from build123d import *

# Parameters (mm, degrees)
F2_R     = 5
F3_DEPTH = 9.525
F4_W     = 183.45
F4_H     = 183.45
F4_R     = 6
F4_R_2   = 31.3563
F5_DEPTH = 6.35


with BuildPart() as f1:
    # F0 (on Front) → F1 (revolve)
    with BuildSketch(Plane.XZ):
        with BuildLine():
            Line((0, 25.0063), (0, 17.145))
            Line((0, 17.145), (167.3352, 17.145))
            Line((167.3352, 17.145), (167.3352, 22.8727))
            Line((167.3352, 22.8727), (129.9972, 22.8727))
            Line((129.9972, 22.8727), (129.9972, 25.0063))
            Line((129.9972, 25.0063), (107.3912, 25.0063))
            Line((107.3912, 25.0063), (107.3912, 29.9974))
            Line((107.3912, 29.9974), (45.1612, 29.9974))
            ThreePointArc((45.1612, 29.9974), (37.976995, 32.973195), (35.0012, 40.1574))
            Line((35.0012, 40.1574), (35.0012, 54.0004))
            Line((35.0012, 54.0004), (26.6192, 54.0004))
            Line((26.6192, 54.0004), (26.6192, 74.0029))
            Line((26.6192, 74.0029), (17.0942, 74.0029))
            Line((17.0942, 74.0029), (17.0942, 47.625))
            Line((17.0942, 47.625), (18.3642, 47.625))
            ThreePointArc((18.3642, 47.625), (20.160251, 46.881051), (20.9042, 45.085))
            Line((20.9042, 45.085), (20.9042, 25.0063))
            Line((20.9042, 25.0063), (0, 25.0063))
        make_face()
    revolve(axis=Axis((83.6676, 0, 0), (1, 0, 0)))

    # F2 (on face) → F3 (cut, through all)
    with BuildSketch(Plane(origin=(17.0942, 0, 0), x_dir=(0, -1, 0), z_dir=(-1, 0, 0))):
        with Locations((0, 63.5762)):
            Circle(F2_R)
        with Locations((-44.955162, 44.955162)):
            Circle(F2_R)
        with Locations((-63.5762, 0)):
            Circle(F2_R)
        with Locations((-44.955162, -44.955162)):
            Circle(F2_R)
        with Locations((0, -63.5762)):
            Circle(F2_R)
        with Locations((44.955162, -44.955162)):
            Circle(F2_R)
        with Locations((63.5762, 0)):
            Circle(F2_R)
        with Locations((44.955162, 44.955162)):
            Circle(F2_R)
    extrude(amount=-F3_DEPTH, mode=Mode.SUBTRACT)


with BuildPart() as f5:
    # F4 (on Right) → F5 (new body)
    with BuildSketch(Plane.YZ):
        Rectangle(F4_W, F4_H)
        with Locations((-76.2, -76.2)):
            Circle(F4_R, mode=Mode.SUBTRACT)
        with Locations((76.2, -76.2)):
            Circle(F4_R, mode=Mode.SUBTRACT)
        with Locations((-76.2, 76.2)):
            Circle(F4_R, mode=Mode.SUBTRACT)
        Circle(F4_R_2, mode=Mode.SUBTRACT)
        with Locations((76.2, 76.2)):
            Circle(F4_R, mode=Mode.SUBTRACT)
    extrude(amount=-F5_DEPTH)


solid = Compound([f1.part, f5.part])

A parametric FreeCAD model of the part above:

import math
import FreeCAD as App
import Part
import Sketcher
Q = App.Units.Quantity


def add_polygon(sketch, points):
    """Adds a closed chain of lines whose ends are joined by coincident constraints."""
    first, n = sketch.GeometryCount, len(points)
    for a, b in zip(points, points[1:] + points[:1]):
        sketch.addGeometry(Part.LineSegment(App.Vector(*a, 0), App.Vector(*b, 0)), False)
    for i in range(n):
        sketch.addConstraint(Sketcher.Constraint("Coincident", first + i, 2, first + (i + 1) % n, 1))

doc = App.newDocument("Part")
params = doc.addObject("Spreadsheet::Sheet", "Params")
for row, (alias, value) in enumerate([
    ("sketch1_radius", "0.4 in"),
    ("sketch1_radius2", "0.1 in"),
    ("sketch1_width", "1.47 in"),
    ("sketch1_width2", "0.89 in"),
    ("sketch1_width3", "2.45 in"),
    ("revolution_angle", "360 deg"),
    ("sketch3_diameter", "2.469 in"),
    ("pad1_length", "0.25 in"),
], start=1):
    params.set(f"A{row}", alias)
    params.set(f"B{row}", "=" + value)
    params.setAlias(f"B{row}", alias)

body = doc.addObject("PartDesign::Body", "Body")

# Sketch on XZ plane
sketch1 = doc.addObject("Sketcher::SketchObject", "Sketch")
body.addObject(sketch1)
sketch1.AttachmentSupport = (doc.XZ_Plane, [""])
sketch1.MapMode = "FlatFace"
sketch1.addGeometry([
    Part.LineSegment(App.Vector(0, 25, 0), App.Vector(0, 17.1, 0)),  # 0
    Part.LineSegment(App.Vector(0, 17.1, 0), App.Vector(167.3, 17.1, 0)),  # 1
    Part.LineSegment(App.Vector(167.3, 17.1, 0), App.Vector(167.3, 22.9, 0)),  # 2
    Part.LineSegment(App.Vector(167.3, 22.9, 0), App.Vector(130, 22.9, 0)),  # 3
    Part.LineSegment(App.Vector(130, 22.9, 0), App.Vector(130, 25, 0)),  # 4
    Part.LineSegment(App.Vector(130, 25, 0), App.Vector(107.4, 25, 0)),  # 5
    Part.LineSegment(App.Vector(107.4, 25, 0), App.Vector(107.4, 30, 0)),  # 6
    Part.LineSegment(App.Vector(107.4, 30, 0), App.Vector(45.2, 30, 0)),  # 7
    Part.ArcOfCircle(Part.Circle(App.Vector(45.2, 40.2, 0), App.Vector(0, 0, 1), 10.2), math.radians(180), math.radians(270)),  # 8
    Part.LineSegment(App.Vector(35, 40.2, 0), App.Vector(35, 54, 0)),  # 9
    Part.LineSegment(App.Vector(35, 54, 0), App.Vector(26.6, 54, 0)),  # 10
    Part.LineSegment(App.Vector(26.6, 54, 0), App.Vector(26.6, 74, 0)),  # 11
    Part.LineSegment(App.Vector(26.6, 74, 0), App.Vector(17.1, 74, 0)),  # 12
    Part.LineSegment(App.Vector(17.1, 74, 0), App.Vector(17.1, 47.6, 0)),  # 13
    Part.LineSegment(App.Vector(17.1, 47.6, 0), App.Vector(18.4, 47.6, 0)),  # 14
    Part.ArcOfCircle(Part.Circle(App.Vector(18.4, 45.1, 0), App.Vector(0, 0, 1), 2.5), math.radians(0), math.radians(90)),  # 15
    Part.LineSegment(App.Vector(20.9, 45.1, 0), App.Vector(20.9, 25, 0)),  # 16
    Part.LineSegment(App.Vector(20.9, 25, 0), App.Vector(0, 25, 0)),  # 17
], False)
sketch1.addConstraint([
    Sketcher.Constraint("Coincident", 0, 2, 1, 1),
    Sketcher.Constraint("Coincident", 1, 2, 2, 1),
    Sketcher.Constraint("Coincident", 2, 2, 3, 1),
    Sketcher.Constraint("Coincident", 3, 2, 4, 1),
    Sketcher.Constraint("Coincident", 4, 2, 5, 1),
    Sketcher.Constraint("Coincident", 5, 2, 6, 1),
    Sketcher.Constraint("Coincident", 6, 2, 7, 1),
    Sketcher.Constraint("Tangent", 7, 2, 8, 2),
    Sketcher.Constraint("Tangent", 8, 1, 9, 1),
    Sketcher.Constraint("Coincident", 9, 2, 10, 1),
    Sketcher.Constraint("Coincident", 10, 2, 11, 1),
    Sketcher.Constraint("Coincident", 11, 2, 12, 1),
    Sketcher.Constraint("Coincident", 12, 2, 13, 1),
    Sketcher.Constraint("Coincident", 13, 2, 14, 1),
    Sketcher.Constraint("Tangent", 14, 2, 15, 2),
    Sketcher.Constraint("Tangent", 15, 1, 16, 1),
    Sketcher.Constraint("Coincident", 16, 2, 17, 1),
    Sketcher.Constraint("Coincident", 17, 2, 0, 1),
    Sketcher.Constraint("Vertical", 0),
    Sketcher.Constraint("Horizontal", 1),
    Sketcher.Constraint("Vertical", 2),
    Sketcher.Constraint("Horizontal", 3),
    Sketcher.Constraint("Vertical", 4),
    Sketcher.Constraint("Horizontal", 5),
    Sketcher.Constraint("Vertical", 6),
    Sketcher.Constraint("Horizontal", 7),
    Sketcher.Constraint("Vertical", 9),
    Sketcher.Constraint("Horizontal", 10),
    Sketcher.Constraint("Vertical", 11),
    Sketcher.Constraint("Horizontal", 12),
    Sketcher.Constraint("Vertical", 13),
    Sketcher.Constraint("Horizontal", 14),
    Sketcher.Constraint("Vertical", 16),
    Sketcher.Constraint("Horizontal", 17),
    Sketcher.Constraint("PointOnObject", 0, 2, -2),
    Sketcher.Constraint("Horizontal", 5, 2, 16, 2),
    Sketcher.Constraint("Radius", 8, Q("0.4 in")),
    Sketcher.Constraint("Radius", 15, Q("0.1 in")),
    Sketcher.Constraint("DistanceX", 3, 2, 3, 1, Q("1.47 in")),
    Sketcher.Constraint("DistanceX", 5, 2, 5, 1, Q("0.89 in")),
    Sketcher.Constraint("DistanceX", 7, 2, 7, 1, Q("2.45 in")),
    Sketcher.Constraint("DistanceX", 10, 2, 10, 1, Q("0.33 in")),
    Sketcher.Constraint("DistanceX", 14, 1, 14, 2, Q("0.05 in")),
    Sketcher.Constraint("DistanceY", 0, 2, 15, 3, Q("1.1 in")),
    Sketcher.Constraint("DistanceX", 1, 1, 1, 2, Q("6.588 in")),
    Sketcher.Constraint("DistanceX", 12, 2, 12, 1, Q("0.375 in")),
    Sketcher.Constraint("DistanceY", 4, 1, 4, 2, Q("0.084 in")),
    Sketcher.Constraint("DistanceY", 9, 1, 9, 2, Q("0.545 in")),
    Sketcher.Constraint("DistanceY", 0, 2, 0, 1, Q("0.3095 in")),
    Sketcher.Constraint("DistanceY", 6, 1, 6, 2, Q("0.1965 in")),
    Sketcher.Constraint("DistanceY", 11, 1, 11, 2, Q("0.7875 in")),
    Sketcher.Constraint("DistanceY", -1, 1, 8, 3, Q("1.581 in")),
])
sketch1.setExpression("Constraints[36]", "Params.sketch1_radius")
sketch1.setExpression("Constraints[37]", "Params.sketch1_radius2")
sketch1.setExpression("Constraints[38]", "Params.sketch1_width")
sketch1.setExpression("Constraints[39]", "Params.sketch1_width2")
sketch1.setExpression("Constraints[40]", "Params.sketch1_width3")
revolution = doc.addObject("PartDesign::Revolution", "Revolution")
body.addObject(revolution)
revolution.Profile = sketch1
revolution.ReferenceAxis = (sketch1, ["H_Axis"])
revolution.setExpression("Angle", "Params.revolution_angle")

# Sketch on YZ plane
sketch2 = doc.addObject("Sketcher::SketchObject", "Sketch001")
body.addObject(sketch2)
sketch2.AttachmentSupport = (doc.YZ_Plane, [""])
sketch2.MapMode = "FlatFace"
sketch2.AttachmentOffset = App.Placement(App.Vector(0, 0, 0.673 * 25.4), App.Rotation())
sketch2.addGeometry([
    Part.Circle(App.Vector(0, 64, 0), App.Vector(0, 0, 1), 5),  # 0
    Part.Circle(App.Vector(45, 45, 0), App.Vector(0, 0, 1), 5),  # 1
    Part.Circle(App.Vector(64, 0, 0), App.Vector(0, 0, 1), 5),  # 2
    Part.Circle(App.Vector(45, -45, 0), App.Vector(0, 0, 1), 5),  # 3
    Part.Circle(App.Vector(0, -64, 0), App.Vector(0, 0, 1), 5),  # 4
    Part.Circle(App.Vector(-45, -45, 0), App.Vector(0, 0, 1), 5),  # 5
    Part.Circle(App.Vector(-64, 0, 0), App.Vector(0, 0, 1), 5),  # 6
    Part.Circle(App.Vector(-45, 45, 0), App.Vector(0, 0, 1), 5),  # 7
], False)
sketch2.addConstraint([
    Sketcher.Constraint("Equal", 0, 1),
    Sketcher.Constraint("Equal", 1, 2),
    Sketcher.Constraint("Equal", 2, 3),
    Sketcher.Constraint("Equal", 3, 4),
    Sketcher.Constraint("Equal", 4, 5),
    Sketcher.Constraint("Equal", 5, 6),
    Sketcher.Constraint("Equal", 6, 7),
    Sketcher.Constraint("Symmetric", 0, 3, 4, 3, -1, 1),
    Sketcher.Constraint("Symmetric", 1, 3, 5, 3, -1, 1),
    Sketcher.Constraint("Symmetric", 2, 3, 6, 3, -1, 1),
    Sketcher.Constraint("Symmetric", 3, 3, 7, 3, -1, 1),
    Sketcher.Constraint("Symmetric", 3, 3, 5, 3, -2),
    Sketcher.Constraint("PointOnObject", 0, 3, -2),
    Sketcher.Constraint("PointOnObject", 2, 3, -1),
    Sketcher.Constraint("Diameter", 0, 10.0),
    Sketcher.Constraint("DistanceY", -1, 1, 0, 3, Q("2.503 in")),
    Sketcher.Constraint("DistanceX", -1, 1, 2, 3, Q("2.503 in")),
    Sketcher.Constraint("DistanceY", 3, 3, 0, 3, 108.531362),
    Sketcher.Constraint("DistanceX", 5, 3, 2, 3, 108.531362),
])
pocket1 = doc.addObject("PartDesign::Pocket", "Pocket")
body.addObject(pocket1)
pocket1.Profile = sketch2
pocket1.Type = "ThroughAll"
pocket1.Reversed = True
body2 = doc.addObject("PartDesign::Body", "Body001")

# Sketch on YZ plane
sketch3 = doc.addObject("Sketcher::SketchObject", "Sketch002")
body2.addObject(sketch3)
sketch3.AttachmentSupport = (doc.getObject("YZ_Plane001"), [""])
sketch3.MapMode = "FlatFace"
add_polygon(sketch3, [(-92, 92), (-92, -92), (92, -92), (92, 92)])  # lines 0-3
sketch3.addGeometry(Part.Circle(App.Vector(-76, -76, 0), App.Vector(0, 0, 1), 6), False)  # 4
sketch3.addGeometry(Part.Circle(App.Vector(76, -76, 0), App.Vector(0, 0, 1), 6), False)  # 5
sketch3.addGeometry(Part.Circle(App.Vector(-76, 76, 0), App.Vector(0, 0, 1), 6), False)  # 6
sketch3.addGeometry(Part.Circle(App.Vector(0, 0, 0), App.Vector(0, 0, 1), 31), False)  # 7
sketch3.addGeometry(Part.Circle(App.Vector(76, 76, 0), App.Vector(0, 0, 1), 6), False)  # 8
sketch3.addConstraint([
    Sketcher.Constraint("Vertical", 0),
    Sketcher.Constraint("Horizontal", 1),
    Sketcher.Constraint("Vertical", 2),
    Sketcher.Constraint("Horizontal", 3),
    Sketcher.Constraint("Coincident", 7, 3, -1, 1),
    Sketcher.Constraint("Equal", 4, 5),
    Sketcher.Constraint("Equal", 5, 6),
    Sketcher.Constraint("Equal", 6, 8),
    Sketcher.Constraint("Symmetric", 5, 3, 6, 3, -1, 1),
    Sketcher.Constraint("Symmetric", 4, 3, 8, 3, -1, 1),
    Sketcher.Constraint("Symmetric", 0, 2, 2, 2, -1, 1),
    Sketcher.Constraint("Symmetric", 4, 3, 5, 3, -2),
    Sketcher.Constraint("Equal", 3, 0),
    Sketcher.Constraint("Diameter", 7, Q("2.469 in")),
    Sketcher.Constraint("DistanceX", 4, 3, -1, 1, Q("3 in")),
    Sketcher.Constraint("DistanceY", 4, 3, -1, 1, Q("3 in")),
    Sketcher.Constraint("Diameter", 4, 12.0),
    Sketcher.Constraint("DistanceX", 1, 1, 1, 2, 183.45),
])
sketch3.setExpression("Constraints[17]", "Params.sketch3_diameter")
pad1 = doc.addObject("PartDesign::Pad", "Pad")
body2.addObject(pad1)
pad1.Profile = sketch3
pad1.setExpression("Length", "Params.pad1_length")
pad1.Reversed = True

doc.recompute()
